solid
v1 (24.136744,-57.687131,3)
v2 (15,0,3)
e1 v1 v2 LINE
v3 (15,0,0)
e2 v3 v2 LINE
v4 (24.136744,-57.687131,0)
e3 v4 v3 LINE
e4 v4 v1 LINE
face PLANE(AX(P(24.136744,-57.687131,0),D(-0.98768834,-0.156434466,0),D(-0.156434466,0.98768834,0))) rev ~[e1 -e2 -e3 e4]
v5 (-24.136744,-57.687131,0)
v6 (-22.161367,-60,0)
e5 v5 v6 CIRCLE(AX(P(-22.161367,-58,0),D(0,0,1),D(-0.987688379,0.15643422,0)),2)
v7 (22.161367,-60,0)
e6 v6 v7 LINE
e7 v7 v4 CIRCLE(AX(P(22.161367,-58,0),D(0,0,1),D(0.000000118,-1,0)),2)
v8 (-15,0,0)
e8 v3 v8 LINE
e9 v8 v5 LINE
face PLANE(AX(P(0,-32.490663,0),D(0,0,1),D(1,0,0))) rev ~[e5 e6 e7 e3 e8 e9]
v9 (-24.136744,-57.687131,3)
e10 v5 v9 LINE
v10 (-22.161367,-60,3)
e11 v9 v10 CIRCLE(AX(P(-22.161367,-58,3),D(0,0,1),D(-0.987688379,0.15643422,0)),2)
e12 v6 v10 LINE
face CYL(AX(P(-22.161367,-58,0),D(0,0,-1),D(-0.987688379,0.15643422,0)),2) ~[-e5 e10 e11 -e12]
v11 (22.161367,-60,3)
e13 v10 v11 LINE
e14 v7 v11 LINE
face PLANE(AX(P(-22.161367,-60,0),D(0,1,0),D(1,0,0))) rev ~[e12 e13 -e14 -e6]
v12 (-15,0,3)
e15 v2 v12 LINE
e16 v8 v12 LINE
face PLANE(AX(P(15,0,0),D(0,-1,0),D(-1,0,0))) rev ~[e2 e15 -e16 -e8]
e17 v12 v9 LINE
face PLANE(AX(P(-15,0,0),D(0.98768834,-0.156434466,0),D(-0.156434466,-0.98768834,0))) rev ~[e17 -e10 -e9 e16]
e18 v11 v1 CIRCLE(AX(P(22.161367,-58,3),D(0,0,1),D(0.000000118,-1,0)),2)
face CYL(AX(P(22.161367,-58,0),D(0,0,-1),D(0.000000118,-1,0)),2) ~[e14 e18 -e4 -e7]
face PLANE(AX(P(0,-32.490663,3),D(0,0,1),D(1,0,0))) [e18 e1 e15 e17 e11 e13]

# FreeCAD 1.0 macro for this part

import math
import FreeCAD as App
import Part
import Sketcher
from FreeCAD import Vector
Q = App.Units.Quantity

doc = App.newDocument("Part")
body = doc.addObject("PartDesign::Body", "Body")

# Sketch on XY plane
sketch1 = body.newObject("Sketcher::SketchObject", "Sketch")
sketch1.AttachmentSupport = (doc.getObject("XY_Plane"), [""])
sketch1.MapMode = "FlatFace"
sketch1.addGeometry(Part.LineSegment(Vector(15, 0, 0), Vector(-15, 0, 0)), False)
sketch1.addGeometry(Part.LineSegment(Vector(-15, 0, 0), Vector(-24.1, -57.7, 0)), False)
sketch1.addGeometry(Part.ArcOfCircle(Part.Circle(Vector(-22.2, -58, 0), Vector(0, 0, 1), 2), math.radians(171), math.radians(270)), False)
sketch1.addGeometry(Part.LineSegment(Vector(-22.2, -60, 0), Vector(22.2, -60, 0)), False)
sketch1.addGeometry(Part.ArcOfCircle(Part.Circle(Vector(22.2, -58, 0), Vector(0, 0, 1), 2), math.radians(-90), math.radians(9)), False)
sketch1.addGeometry(Part.LineSegment(Vector(24.1, -57.7, 0), Vector(15, 0, 0)), False)
sketch1.addConstraint(Sketcher.Constraint("Coincident", 0, 2, 1, 1))
sketch1.addConstraint(Sketcher.Constraint("Tangent", 1, 2, 2, 1))
sketch1.addConstraint(Sketcher.Constraint("Tangent", 2, 2, 3, 1))
sketch1.addConstraint(Sketcher.Constraint("Tangent", 3, 2, 4, 1))
sketch1.addConstraint(Sketcher.Constraint("Tangent", 4, 2, 5, 1))
sketch1.addConstraint(Sketcher.Constraint("Coincident", 5, 2, 0, 1))
sketch1.addConstraint(Sketcher.Constraint("Horizontal", 0))
sketch1.addConstraint(Sketcher.Constraint("Horizontal", 3))
sketch1.addConstraint(Sketcher.Constraint("Equal", 2, 4))
sketch1.addConstraint(Sketcher.Constraint("Symmetric", 0, 2, 5, 2, -1, 1))
sketch1.addConstraint(Sketcher.Constraint("Horizontal", 1, 2, 4, 2))
sketch1.addConstraint(Sketcher.Constraint("Radius", 2, 2.0))
sketch1.addConstraint(Sketcher.Constraint("DistanceX", 0, 2, 0, 1, 30.0))
sketch1.addConstraint(Sketcher.Constraint("Angle", 1, Q("-99 deg")))
sketch1.addConstraint(Sketcher.Constraint("DistanceY", 2, 3, -1, 1, 58.0))
pad1 = body.newObject("PartDesign::Pad", "Pad")
pad1.Profile = sketch1
pad1.Length = 3

doc.recompute()
